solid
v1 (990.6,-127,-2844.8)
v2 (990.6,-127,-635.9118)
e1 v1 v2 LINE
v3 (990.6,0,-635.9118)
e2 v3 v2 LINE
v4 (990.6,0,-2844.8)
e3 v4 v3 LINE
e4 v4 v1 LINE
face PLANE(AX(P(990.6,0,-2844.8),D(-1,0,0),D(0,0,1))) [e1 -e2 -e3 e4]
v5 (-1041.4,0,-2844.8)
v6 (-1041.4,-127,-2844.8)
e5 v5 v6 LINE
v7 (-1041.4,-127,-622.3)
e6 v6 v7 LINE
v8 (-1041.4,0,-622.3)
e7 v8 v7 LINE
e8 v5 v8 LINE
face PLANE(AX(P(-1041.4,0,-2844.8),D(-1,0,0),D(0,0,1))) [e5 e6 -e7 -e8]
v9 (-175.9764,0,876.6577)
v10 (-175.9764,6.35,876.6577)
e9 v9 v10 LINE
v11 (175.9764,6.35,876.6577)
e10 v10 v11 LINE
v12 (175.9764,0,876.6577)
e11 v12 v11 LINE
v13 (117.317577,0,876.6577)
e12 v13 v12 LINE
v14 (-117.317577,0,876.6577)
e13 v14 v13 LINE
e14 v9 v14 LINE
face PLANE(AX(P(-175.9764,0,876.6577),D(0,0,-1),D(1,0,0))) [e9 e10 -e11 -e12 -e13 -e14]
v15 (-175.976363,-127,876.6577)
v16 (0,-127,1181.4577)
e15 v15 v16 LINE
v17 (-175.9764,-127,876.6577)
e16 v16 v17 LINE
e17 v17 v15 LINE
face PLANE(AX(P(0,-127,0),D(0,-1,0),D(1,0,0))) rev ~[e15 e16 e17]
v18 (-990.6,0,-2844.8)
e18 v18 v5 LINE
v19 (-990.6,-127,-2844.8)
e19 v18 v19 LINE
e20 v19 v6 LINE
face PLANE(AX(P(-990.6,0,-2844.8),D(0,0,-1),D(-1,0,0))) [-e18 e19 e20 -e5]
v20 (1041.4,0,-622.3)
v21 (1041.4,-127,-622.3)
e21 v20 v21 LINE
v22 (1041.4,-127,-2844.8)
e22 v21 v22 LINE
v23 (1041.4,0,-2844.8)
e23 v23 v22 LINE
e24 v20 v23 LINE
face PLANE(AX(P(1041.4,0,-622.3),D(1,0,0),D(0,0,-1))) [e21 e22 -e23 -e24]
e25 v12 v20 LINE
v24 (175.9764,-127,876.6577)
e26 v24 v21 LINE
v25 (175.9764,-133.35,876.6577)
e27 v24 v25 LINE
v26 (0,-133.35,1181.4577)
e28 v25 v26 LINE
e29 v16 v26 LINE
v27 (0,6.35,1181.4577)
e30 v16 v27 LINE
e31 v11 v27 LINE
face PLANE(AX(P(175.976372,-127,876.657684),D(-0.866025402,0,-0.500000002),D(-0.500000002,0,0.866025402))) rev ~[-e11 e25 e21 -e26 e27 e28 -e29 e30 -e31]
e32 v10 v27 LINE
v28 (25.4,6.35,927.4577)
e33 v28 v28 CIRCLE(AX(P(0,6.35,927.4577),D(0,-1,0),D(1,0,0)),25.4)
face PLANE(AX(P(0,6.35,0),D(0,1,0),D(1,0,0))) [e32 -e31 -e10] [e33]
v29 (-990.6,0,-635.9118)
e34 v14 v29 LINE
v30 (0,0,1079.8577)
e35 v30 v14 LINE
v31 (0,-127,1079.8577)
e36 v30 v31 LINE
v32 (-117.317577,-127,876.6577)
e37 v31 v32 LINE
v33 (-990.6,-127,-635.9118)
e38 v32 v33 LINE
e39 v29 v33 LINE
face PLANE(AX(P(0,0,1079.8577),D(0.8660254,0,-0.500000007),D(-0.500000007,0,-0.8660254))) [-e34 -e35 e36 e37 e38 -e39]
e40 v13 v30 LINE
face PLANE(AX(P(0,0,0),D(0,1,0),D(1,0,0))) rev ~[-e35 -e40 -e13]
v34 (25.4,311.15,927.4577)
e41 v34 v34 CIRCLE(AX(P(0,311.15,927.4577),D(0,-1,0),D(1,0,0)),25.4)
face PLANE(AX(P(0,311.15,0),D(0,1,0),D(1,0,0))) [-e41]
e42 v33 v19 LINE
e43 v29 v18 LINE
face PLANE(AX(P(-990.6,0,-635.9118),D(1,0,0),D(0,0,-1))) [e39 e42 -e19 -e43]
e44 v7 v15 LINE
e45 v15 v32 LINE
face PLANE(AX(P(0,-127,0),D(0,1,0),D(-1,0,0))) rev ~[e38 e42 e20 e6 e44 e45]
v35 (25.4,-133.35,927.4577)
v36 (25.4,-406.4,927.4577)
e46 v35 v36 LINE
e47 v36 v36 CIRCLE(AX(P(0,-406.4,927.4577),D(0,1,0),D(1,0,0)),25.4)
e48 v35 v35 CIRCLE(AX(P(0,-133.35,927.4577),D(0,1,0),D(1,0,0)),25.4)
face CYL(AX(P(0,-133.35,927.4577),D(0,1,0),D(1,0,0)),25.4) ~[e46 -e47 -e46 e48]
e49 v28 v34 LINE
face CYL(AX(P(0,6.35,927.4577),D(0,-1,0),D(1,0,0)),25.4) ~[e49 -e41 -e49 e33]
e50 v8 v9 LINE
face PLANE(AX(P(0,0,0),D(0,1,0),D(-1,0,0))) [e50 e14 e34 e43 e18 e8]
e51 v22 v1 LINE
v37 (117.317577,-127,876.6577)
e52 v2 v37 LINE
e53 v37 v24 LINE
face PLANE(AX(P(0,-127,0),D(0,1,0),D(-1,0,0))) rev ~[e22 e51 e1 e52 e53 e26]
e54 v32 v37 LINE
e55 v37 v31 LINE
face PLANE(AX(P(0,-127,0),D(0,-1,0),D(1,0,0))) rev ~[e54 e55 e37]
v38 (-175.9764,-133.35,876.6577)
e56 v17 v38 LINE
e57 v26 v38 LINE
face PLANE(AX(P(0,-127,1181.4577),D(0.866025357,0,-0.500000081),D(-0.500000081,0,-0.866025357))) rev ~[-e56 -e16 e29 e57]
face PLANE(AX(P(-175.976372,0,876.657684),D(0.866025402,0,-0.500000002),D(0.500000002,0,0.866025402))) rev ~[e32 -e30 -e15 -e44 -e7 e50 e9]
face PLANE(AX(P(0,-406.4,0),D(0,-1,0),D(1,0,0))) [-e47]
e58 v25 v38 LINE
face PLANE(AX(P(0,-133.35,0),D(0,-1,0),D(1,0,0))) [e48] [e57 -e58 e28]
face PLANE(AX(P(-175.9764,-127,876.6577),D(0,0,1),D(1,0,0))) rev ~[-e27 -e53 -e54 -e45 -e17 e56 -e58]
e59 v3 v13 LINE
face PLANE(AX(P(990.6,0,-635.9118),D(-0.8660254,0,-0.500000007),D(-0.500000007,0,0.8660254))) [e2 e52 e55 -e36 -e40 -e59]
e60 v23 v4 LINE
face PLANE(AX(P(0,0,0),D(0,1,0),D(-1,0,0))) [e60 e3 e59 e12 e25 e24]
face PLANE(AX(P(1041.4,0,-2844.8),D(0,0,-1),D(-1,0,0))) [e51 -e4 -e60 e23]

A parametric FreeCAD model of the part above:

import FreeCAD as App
import Part
import Sketcher

V = App.Vector
Q = App.Units.Quantity

doc = App.newDocument("Part")
params = doc.addObject("Spreadsheet::Sheet", "Params")
for row, (alias, value) in enumerate([
    ("sketch1_width", "2 in"),
    ("sketch1_length", "82 in"),
    ("sketch1_height", "87.5 in"),
    ("pad1_length", "5 in"),
    ("pad2_length", "0.25 in"),
    ("pad3_length", "0.25 in"),
    ("sketch4_diameter", "2 in"),
    ("pad4_length", "12 in"),
    ("sketch5_diameter", "2 in"),
    ("pad5_length", "10.75 in"),
], start=1):
    params.set(f"A{row}", alias)
    params.set(f"B{row}", "=" + value)
    params.setAlias(f"B{row}", alias)

body = doc.addObject("PartDesign::Body", "Body")

sketch1 = doc.addObject("Sketcher::SketchObject", "Sketch")
body.addObject(sketch1)
sketch1.AttachmentSupport = (doc.XZ_Plane, [""])
sketch1.MapMode = "FlatFace"
sketch1.addGeometry(Part.LineSegment(V(-1041, -622, 0), V(0, 1181, 0)), False)
sketch1.addGeometry(Part.LineSegment(V(0, 1181, 0), V(1041, -622, 0)), False)
sketch1.addGeometry(Part.LineSegment(V(1041, -622, 0), V(1041, -2845, 0)), False)
sketch1.addGeometry(Part.LineSegment(V(1041, -2845, 0), V(991, -2845, 0)), False)
sketch1.addGeometry(Part.LineSegment(V(991, -2845, 0), V(991, -636, 0)), False)
sketch1.addGeometry(Part.LineSegment(V(991, -636, 0), V(0, 1080, 0)), False)
sketch1.addGeometry(Part.LineSegment(V(0, 1080, 0), V(-991, -636, 0)), False)
sketch1.addGeometry(Part.LineSegment(V(-991, -636, 0), V(-991, -2845, 0)), False)
sketch1.addGeometry(Part.LineSegment(V(-991, -2845, 0), V(-1041, -2845, 0)), False)
sketch1.addGeometry(Part.LineSegment(V(-1041, -2845, 0), V(-1041, -622, 0)), False)
sketch1.addConstraint(Sketcher.Constraint("Coincident", 0, 2, 1, 1))
sketch1.addConstraint(Sketcher.Constraint("Coincident", 1, 2, 2, 1))
sketch1.addConstraint(Sketcher.Constraint("Coincident", 2, 2, 3, 1))
sketch1.addConstraint(Sketcher.Constraint("Coincident", 3, 2, 4, 1))
sketch1.addConstraint(Sketcher.Constraint("Coincident", 4, 2, 5, 1))
sketch1.addConstraint(Sketcher.Constraint("Coincident", 5, 2, 6, 1))
sketch1.addConstraint(Sketcher.Constraint("Coincident", 6, 2, 7, 1))
sketch1.addConstraint(Sketcher.Constraint("Coincident", 7, 2, 8, 1))
sketch1.addConstraint(Sketcher.Constraint("Coincident", 8, 2, 9, 1))
sketch1.addConstraint(Sketcher.Constraint("Coincident", 9, 2, 0, 1))
sketch1.addConstraint(Sketcher.Constraint("Vertical", 2))
sketch1.addConstraint(Sketcher.Constraint("Horizontal", 3))
sketch1.addConstraint(Sketcher.Constraint("Vertical", 4))
sketch1.addConstraint(Sketcher.Constraint("Vertical", 7))
sketch1.addConstraint(Sketcher.Constraint("Horizontal", 8))
sketch1.addConstraint(Sketcher.Constraint("Vertical", 9))
sketch1.addConstraint(Sketcher.Constraint("Symmetric", 4, 2, 6, 2, -2))
sketch1.addConstraint(Sketcher.Constraint("Symmetric", 2, 2, 8, 2, -2))
sketch1.addConstraint(Sketcher.Constraint("PointOnObject", 0, 2, -2))
sketch1.addConstraint(Sketcher.Constraint("PointOnObject", 5, 2, -2))
sketch1.addConstraint(Sketcher.Constraint("Parallel", 1, 5))
sketch1.addConstraint(Sketcher.Constraint("Parallel", 0, 6))
sketch1.addConstraint(Sketcher.Constraint("DistanceX", 3, 2, 3, 1, Q("2 in")))
sketch1.addConstraint(Sketcher.Constraint("Distance", 0, Q("82 in")))
sketch1.addConstraint(Sketcher.Constraint("DistanceY", 2, 2, 2, 1, Q("87.5 in")))
sketch1.addConstraint(Sketcher.Constraint("DistanceX", 8, 2, 2, 2, Q("82 in")))
sketch1.addConstraint(Sketcher.Constraint("DistanceY", 1, 2, -1, 1, Q("24.5 in")))
sketch1.addConstraint(Sketcher.Constraint("DistanceY", 5, 2, 0, 2, Q("4 in")))
sketch1.setExpression("Constraints[22]", "Params.sketch1_width")
sketch1.setExpression("Constraints[23]", "Params.sketch1_length")
sketch1.setExpression("Constraints[24]", "Params.sketch1_height")
pad1 = doc.addObject("PartDesign::Pad", "Pad")
body.addObject(pad1)
pad1.Profile = sketch1
pad1.setExpression("Length", "Params.pad1_length")

sketch2 = doc.addObject("Sketcher::SketchObject", "Sketch001")
body.addObject(sketch2)
sketch2.AttachmentSupport = (doc.XZ_Plane, [""])
sketch2.MapMode = "FlatFace"
sketch2.addGeometry(Part.LineSegment(V(176, 877, 0), V(-176, 877, 0)), False)
sketch2.addGeometry(Part.LineSegment(V(-176, 877, 0), V(0, 1181, 0)), False)
sketch2.addGeometry(Part.LineSegment(V(0, 1181, 0), V(176, 877, 0)), False)
sketch2.addConstraint(Sketcher.Constraint("Coincident", 0, 2, 1, 1))
sketch2.addConstraint(Sketcher.Constraint("Coincident", 1, 2, 2, 1))
sketch2.addConstraint(Sketcher.Constraint("Coincident", 2, 2, 0, 1))
sketch2.addConstraint(Sketcher.Constraint("Horizontal", 0))
sketch2.addConstraint(Sketcher.Constraint("PointOnObject", 1, 2, -2))
sketch2.addConstraint(Sketcher.Constraint("Equal", 1, 2))
sketch2.addConstraint(Sketcher.Constraint("DistanceY", 0, 2, 1, 2, Q("12 in")))
sketch2.addConstraint(Sketcher.Constraint("Angle", 1, Q("60 deg")))
sketch2.addConstraint(Sketcher.Constraint("DistanceY", -1, 1, 0, 2, Q("876.6577 mm")))
pad2 = doc.addObject("PartDesign::Pad", "Pad001")
body.addObject(pad2)
pad2.Profile = sketch2
pad2.setExpression("Length", "Params.pad2_length")
pad2.Reversed = True

sketch3 = doc.addObject("Sketcher::SketchObject", "Sketch002")
body.addObject(sketch3)
sketch3.AttachmentSupport = (doc.XZ_Plane, [""])
sketch3.MapMode = "FlatFace"
sketch3.AttachmentOffset = App.Placement(V(0, 0, 5 * 25.4), App.Rotation())
sketch3.addGeometry(Part.LineSegment(V(-176, 877, 0), V(176, 877, 0)), False)
sketch3.addGeometry(Part.LineSegment(V(176, 877, 0), V(0, 1181, 0)), False)
sketch3.addGeometry(Part.LineSegment(V(0, 1181, 0), V(-176, 877, 0)), False)
sketch3.addConstraint(Sketcher.Constraint("Coincident", 0, 2, 1, 1))
sketch3.addConstraint(Sketcher.Constraint("Coincident", 1, 2, 2, 1))
sketch3.addConstraint(Sketcher.Constraint("Coincident", 2, 2, 0, 1))
sketch3.addConstraint(Sketcher.Constraint("Horizontal", 0))
sketch3.addConstraint(Sketcher.Constraint("PointOnObject", 1, 2, -2))
sketch3.addConstraint(Sketcher.Constraint("Equal", 1, 2))
sketch3.addConstraint(Sketcher.Constraint("Angle", 1, Q("120 deg")))
sketch3.addConstraint(Sketcher.Constraint("DistanceY", 0, 2, 1, 2, Q("12 in")))
sketch3.addConstraint(Sketcher.Constraint("DistanceY", -1, 1, 0, 2, Q("876.6577 mm")))
pad3 = doc.addObject("PartDesign::Pad", "Pad002")
body.addObject(pad3)
pad3.Profile = sketch3
pad3.setExpression("Length", "Params.pad3_length")

sketch4 = doc.addObject("Sketcher::SketchObject", "Sketch003")
body.addObject(sketch4)
sketch4.AttachmentSupport = (doc.XZ_Plane, [""])
sketch4.MapMode = "FlatFace"
sketch4.AttachmentOffset = App.Placement(V(0, 0, -0.25 * 25.4), App.Rotation())
sketch4.addGeometry(Part.Circle(V(0, 927, 0), V(0, 0, 1), 25), False)
sketch4.addConstraint(Sketcher.Constraint("PointOnObject", 0, 3, -2))
sketch4.addConstraint(Sketcher.Constraint("Diameter", 0, Q("2 in")))
sketch4.addConstraint(Sketcher.Constraint("DistanceY", -1, 1, 0, 3, Q("927.4577 mm")))
sketch4.setExpression("Constraints[1]", "Params.sketch4_diameter")
pad4 = doc.addObject("PartDesign::Pad", "Pad003")
body.addObject(pad4)
pad4.Profile = sketch4
pad4.setExpression("Length", "Params.pad4_length")
pad4.Reversed = True

sketch5 = doc.addObject("Sketcher::SketchObject", "Sketch004")
body.addObject(sketch5)
sketch5.AttachmentSupport = (doc.XZ_Plane, [""])
sketch5.MapMode = "FlatFace"
sketch5.AttachmentOffset = App.Placement(V(0, 0, 5.25 * 25.4), App.Rotation())
sketch5.addGeometry(Part.Circle(V(0, 927, 0), V(0, 0, 1), 25), False)
sketch5.addConstraint(Sketcher.Constraint("PointOnObject", 0, 3, -2))
sketch5.addConstraint(Sketcher.Constraint("Diameter", 0, Q("2 in")))
sketch5.addConstraint(Sketcher.Constraint("DistanceY", -1, 1, 0, 3, Q("927.4577 mm")))
sketch5.setExpression("Constraints[1]", "Params.sketch5_diameter")
pad5 = doc.addObject("PartDesign::Pad", "Pad004")
body.addObject(pad5)
pad5.Profile = sketch5
pad5.setExpression("Length", "Params.pad5_length")

doc.recompute()
